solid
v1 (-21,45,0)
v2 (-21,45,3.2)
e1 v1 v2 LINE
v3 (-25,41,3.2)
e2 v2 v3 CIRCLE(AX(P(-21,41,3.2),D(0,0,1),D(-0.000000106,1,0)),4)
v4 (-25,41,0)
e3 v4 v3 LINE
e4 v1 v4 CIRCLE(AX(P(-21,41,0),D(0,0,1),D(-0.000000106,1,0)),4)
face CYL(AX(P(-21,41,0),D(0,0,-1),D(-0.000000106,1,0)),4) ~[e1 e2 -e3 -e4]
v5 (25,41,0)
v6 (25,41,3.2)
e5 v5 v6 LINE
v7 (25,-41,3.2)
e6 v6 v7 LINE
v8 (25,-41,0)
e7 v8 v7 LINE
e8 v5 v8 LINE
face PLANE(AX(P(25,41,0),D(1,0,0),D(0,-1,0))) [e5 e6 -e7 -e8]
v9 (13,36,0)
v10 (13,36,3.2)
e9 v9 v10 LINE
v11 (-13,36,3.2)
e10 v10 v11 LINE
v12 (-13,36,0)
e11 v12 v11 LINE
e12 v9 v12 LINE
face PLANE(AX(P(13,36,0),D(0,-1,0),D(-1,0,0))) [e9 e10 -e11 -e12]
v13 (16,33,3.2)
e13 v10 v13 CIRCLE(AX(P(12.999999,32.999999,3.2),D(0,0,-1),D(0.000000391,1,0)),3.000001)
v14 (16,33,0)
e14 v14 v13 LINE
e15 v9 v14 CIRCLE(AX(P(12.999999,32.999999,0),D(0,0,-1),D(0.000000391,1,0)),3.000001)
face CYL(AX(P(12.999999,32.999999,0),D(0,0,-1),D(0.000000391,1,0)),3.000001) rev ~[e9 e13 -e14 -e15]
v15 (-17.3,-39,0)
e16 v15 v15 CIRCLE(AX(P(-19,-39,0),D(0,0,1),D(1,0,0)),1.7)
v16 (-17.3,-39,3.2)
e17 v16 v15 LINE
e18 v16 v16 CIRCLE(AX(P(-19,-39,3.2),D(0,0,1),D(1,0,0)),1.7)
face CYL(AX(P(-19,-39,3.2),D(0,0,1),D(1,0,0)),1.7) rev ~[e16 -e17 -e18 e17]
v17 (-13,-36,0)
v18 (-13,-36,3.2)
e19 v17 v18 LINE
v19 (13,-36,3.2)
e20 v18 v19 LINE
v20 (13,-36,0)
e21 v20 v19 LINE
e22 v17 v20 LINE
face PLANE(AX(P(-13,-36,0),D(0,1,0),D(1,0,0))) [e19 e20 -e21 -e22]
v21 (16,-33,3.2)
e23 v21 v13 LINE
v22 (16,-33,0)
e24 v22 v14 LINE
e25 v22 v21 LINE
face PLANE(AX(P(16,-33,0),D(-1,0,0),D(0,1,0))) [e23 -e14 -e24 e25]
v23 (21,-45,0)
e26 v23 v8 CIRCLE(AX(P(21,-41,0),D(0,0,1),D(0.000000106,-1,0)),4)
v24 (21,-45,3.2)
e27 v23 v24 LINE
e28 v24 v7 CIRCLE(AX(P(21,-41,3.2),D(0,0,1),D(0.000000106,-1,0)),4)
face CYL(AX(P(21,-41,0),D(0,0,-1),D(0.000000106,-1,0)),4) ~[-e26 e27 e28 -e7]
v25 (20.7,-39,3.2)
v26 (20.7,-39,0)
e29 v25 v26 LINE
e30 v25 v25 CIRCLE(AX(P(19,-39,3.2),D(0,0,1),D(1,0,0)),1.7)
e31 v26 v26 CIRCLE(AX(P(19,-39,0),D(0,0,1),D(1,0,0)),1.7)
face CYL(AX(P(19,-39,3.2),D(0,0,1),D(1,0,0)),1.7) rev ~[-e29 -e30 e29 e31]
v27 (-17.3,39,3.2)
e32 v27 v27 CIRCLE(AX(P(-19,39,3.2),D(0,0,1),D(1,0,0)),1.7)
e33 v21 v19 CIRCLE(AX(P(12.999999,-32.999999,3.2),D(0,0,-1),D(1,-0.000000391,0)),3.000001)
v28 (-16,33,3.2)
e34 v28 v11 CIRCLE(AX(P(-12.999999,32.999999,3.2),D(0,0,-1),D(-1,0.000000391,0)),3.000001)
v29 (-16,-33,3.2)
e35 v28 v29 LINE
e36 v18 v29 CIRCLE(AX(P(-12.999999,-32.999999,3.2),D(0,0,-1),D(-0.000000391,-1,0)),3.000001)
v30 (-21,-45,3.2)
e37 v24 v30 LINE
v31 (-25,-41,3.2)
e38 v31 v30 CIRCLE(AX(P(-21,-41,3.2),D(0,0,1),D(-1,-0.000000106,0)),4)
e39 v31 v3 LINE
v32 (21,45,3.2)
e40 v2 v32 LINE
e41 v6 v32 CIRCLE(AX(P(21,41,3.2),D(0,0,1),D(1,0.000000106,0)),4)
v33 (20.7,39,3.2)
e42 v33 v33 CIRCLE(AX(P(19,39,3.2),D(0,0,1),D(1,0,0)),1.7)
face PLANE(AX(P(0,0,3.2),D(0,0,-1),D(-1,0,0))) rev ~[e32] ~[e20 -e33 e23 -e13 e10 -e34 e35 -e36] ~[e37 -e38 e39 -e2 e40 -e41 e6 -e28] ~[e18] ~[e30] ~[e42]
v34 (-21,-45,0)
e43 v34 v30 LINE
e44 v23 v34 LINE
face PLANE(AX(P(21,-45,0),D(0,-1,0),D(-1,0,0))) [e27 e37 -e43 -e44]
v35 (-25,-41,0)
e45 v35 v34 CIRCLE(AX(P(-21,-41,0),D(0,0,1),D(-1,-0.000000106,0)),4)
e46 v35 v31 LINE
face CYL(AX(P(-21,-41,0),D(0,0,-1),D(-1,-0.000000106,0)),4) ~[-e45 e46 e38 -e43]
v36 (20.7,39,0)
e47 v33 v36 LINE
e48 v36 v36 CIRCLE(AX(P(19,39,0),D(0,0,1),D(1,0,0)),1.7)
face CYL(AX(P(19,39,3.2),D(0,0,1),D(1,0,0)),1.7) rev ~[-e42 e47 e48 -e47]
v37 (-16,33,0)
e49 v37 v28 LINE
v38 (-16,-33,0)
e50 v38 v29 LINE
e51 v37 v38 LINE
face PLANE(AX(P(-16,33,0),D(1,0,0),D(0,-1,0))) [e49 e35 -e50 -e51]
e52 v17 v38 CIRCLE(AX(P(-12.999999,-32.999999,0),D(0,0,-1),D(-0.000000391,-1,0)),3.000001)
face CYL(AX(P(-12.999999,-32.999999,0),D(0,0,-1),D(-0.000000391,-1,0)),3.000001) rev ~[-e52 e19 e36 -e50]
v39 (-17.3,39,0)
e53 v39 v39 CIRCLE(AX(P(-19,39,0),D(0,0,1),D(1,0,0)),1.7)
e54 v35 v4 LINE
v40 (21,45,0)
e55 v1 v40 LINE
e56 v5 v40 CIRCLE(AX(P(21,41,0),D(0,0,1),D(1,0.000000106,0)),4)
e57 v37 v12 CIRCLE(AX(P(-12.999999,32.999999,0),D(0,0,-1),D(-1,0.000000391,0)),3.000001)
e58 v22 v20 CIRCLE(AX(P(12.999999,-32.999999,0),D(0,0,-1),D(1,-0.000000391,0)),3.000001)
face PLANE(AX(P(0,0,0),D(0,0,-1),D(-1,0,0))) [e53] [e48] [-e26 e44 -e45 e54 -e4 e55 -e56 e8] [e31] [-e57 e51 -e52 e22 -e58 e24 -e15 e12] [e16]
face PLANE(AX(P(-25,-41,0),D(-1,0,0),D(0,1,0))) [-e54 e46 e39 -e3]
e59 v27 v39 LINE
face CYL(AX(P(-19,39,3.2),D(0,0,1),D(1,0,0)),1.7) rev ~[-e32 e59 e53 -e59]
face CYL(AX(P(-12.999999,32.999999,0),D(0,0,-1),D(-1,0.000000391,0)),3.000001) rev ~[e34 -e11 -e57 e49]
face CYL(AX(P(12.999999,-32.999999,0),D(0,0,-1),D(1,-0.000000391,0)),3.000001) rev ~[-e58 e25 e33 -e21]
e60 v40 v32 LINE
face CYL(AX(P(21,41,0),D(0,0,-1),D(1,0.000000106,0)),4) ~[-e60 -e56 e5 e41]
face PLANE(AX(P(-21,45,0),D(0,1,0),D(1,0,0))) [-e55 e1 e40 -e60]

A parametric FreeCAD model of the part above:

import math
import FreeCAD as App
import Part
import Sketcher
from FreeCAD import Vector

doc = App.newDocument("Part")
params = doc.addObject("Spreadsheet::Sheet", "Params")
for row, (alias, value) in enumerate([
    ("sketch1_radius", "4 mm"),
    ("sketch1_width", "42 mm"),
    ("sketch1_height", "82 mm"),
    ("pad1_length", "3.2 mm"),
    ("sketch2_diameter", "3.4 mm"),
    ("sketch3_radius", "3.000001 mm"),
    ("sketch3_width", "26 mm"),
    ("sketch3_height", "66 mm"),
], start=1):
    params.set(f"A{row}", alias)
    params.set(f"B{row}", "=" + value)
    params.setAlias(f"B{row}", alias)

body = doc.addObject("PartDesign::Body", "Body")

sketch1 = body.newObject("Sketcher::SketchObject", "Sketch")
sketch1.AttachmentSupport = (doc.getObject("XY_Plane"), [""])
sketch1.MapMode = "FlatFace"
sketch1.addGeometry([
    Part.LineSegment(Vector(21, 45, 0), Vector(-21, 45, 0)),
    Part.ArcOfCircle(Part.Circle(Vector(-21, 41, 0), Vector(0, 0, 1), 4), math.radians(90), math.radians(180)),
    Part.LineSegment(Vector(-25, 41, 0), Vector(-25, -41, 0)),
    Part.ArcOfCircle(Part.Circle(Vector(-21, -41, 0), Vector(0, 0, 1), 4), math.radians(-180), math.radians(-90)),
    Part.LineSegment(Vector(-21, -45, 0), Vector(21, -45, 0)),
    Part.ArcOfCircle(Part.Circle(Vector(21, -41, 0), Vector(0, 0, 1), 4), math.radians(-90), math.radians(0)),
    Part.LineSegment(Vector(25, -41, 0), Vector(25, 41, 0)),
    Part.ArcOfCircle(Part.Circle(Vector(21, 41, 0), Vector(0, 0, 1), 4), math.radians(0), math.radians(90)),
], False)
sketch1.addConstraint([
    Sketcher.Constraint("Tangent", 0, 2, 1, 1),
    Sketcher.Constraint("Tangent", 1, 2, 2, 1),
    Sketcher.Constraint("Tangent", 2, 2, 3, 1),
    Sketcher.Constraint("Tangent", 3, 2, 4, 1),
    Sketcher.Constraint("Tangent", 4, 2, 5, 1),
    Sketcher.Constraint("Tangent", 5, 2, 6, 1),
    Sketcher.Constraint("Tangent", 6, 2, 7, 1),
    Sketcher.Constraint("Tangent", 7, 2, 0, 1),
    Sketcher.Constraint("Horizontal", 0),
    Sketcher.Constraint("Vertical", 2),
    Sketcher.Constraint("Horizontal", 4),
    Sketcher.Constraint("Vertical", 6),
    Sketcher.Constraint("Equal", 1, 3),
    Sketcher.Constraint("Equal", 3, 5),
    Sketcher.Constraint("Equal", 5, 7),
    Sketcher.Constraint("Symmetric", 1, 3, 5, 3, -1, 1),
    Sketcher.Constraint("Radius", 1, 4.0),
    Sketcher.Constraint("DistanceX", 0, 2, 0, 1, 42.0),
    Sketcher.Constraint("DistanceY", 2, 2, 2, 1, 82.0),
])
sketch1.setExpression("Constraints[16]", "Params.sketch1_radius")
sketch1.setExpression("Constraints[17]", "Params.sketch1_width")
sketch1.setExpression("Constraints[18]", "Params.sketch1_height")
pad1 = body.newObject("PartDesign::Pad", "Pad")
pad1.Profile = sketch1
pad1.setExpression("Length", "Params.pad1_length")

sketch2 = body.newObject("Sketcher::SketchObject", "Sketch001")
sketch2.AttachmentSupport = (doc.getObject("XY_Plane"), [""])
sketch2.MapMode = "FlatFace"
sketch2.AttachmentOffset = App.Placement(Vector(0, 0, 3.2), App.Rotation())
sketch2.addGeometry([
    Part.Circle(Vector(-19, 39, 0), Vector(0, 0, 1), 1.7),
    Part.Circle(Vector(19, 39, 0), Vector(0, 0, 1), 1.7),
    Part.Circle(Vector(-19, -39, 0), Vector(0, 0, 1), 1.7),
    Part.Circle(Vector(19, -39, 0), Vector(0, 0, 1), 1.7),
], False)
sketch2.addConstraint([
    Sketcher.Constraint("Equal", 0, 1),
    Sketcher.Constraint("Equal", 1, 2),
    Sketcher.Constraint("Equal", 2, 3),
    Sketcher.Constraint("Symmetric", 1, 3, 2, 3, -1, 1),
    Sketcher.Constraint("Symmetric", 0, 3, 3, 3, -1, 1),
    Sketcher.Constraint("Symmetric", 0, 3, 1, 3, -2),
    Sketcher.Constraint("Diameter", 0, 3.4),
    Sketcher.Constraint("DistanceX", 0, 3, -1, 1, 19.0),
    Sketcher.Constraint("DistanceY", -1, 1, 0, 3, 39.0),
])
sketch2.setExpression("Constraints[6]", "Params.sketch2_diameter")
pocket1 = body.newObject("PartDesign::Pocket", "Pocket")
pocket1.Profile = sketch2
pocket1.Type = "ThroughAll"

sketch3 = body.newObject("Sketcher::SketchObject", "Sketch002")
sketch3.AttachmentSupport = (doc.getObject("XY_Plane"), [""])
sketch3.MapMode = "FlatFace"
sketch3.addGeometry([
    Part.LineSegment(Vector(13, -36, 0), Vector(-13, -36, 0)),
    Part.ArcOfCircle(Part.Circle(Vector(-13, -33, 0), Vector(0, 0, 1), 3), math.radians(-180), math.radians(-90)),
    Part.LineSegment(Vector(-16, -33, 0), Vector(-16, 33, 0)),
    Part.ArcOfCircle(Part.Circle(Vector(-13, 33, 0), Vector(0, 0, 1), 3), math.radians(90), math.radians(180)),
    Part.LineSegment(Vector(-13, 36, 0), Vector(13, 36, 0)),
    Part.ArcOfCircle(Part.Circle(Vector(13, 33, 0), Vector(0, 0, 1), 3), math.radians(0), math.radians(90)),
    Part.LineSegment(Vector(16, 33, 0), Vector(16, -33, 0)),
    Part.ArcOfCircle(Part.Circle(Vector(13, -33, 0), Vector(0, 0, 1), 3), math.radians(-90), math.radians(0)),
], False)
sketch3.addConstraint([
    Sketcher.Constraint("Tangent", 0, 2, 1, 2),
    Sketcher.Constraint("Tangent", 1, 1, 2, 1),
    Sketcher.Constraint("Tangent", 2, 2, 3, 2),
    Sketcher.Constraint("Tangent", 3, 1, 4, 1),
    Sketcher.Constraint("Tangent", 4, 2, 5, 2),
    Sketcher.Constraint("Tangent", 5, 1, 6, 1),
    Sketcher.Constraint("Tangent", 6, 2, 7, 2),
    Sketcher.Constraint("Tangent", 7, 1, 0, 1),
    Sketcher.Constraint("Horizontal", 0),
    Sketcher.Constraint("Vertical", 2),
    Sketcher.Constraint("Horizontal", 4),
    Sketcher.Constraint("Vertical", 6),
    Sketcher.Constraint("Equal", 1, 3),
    Sketcher.Constraint("Equal", 3, 5),
    Sketcher.Constraint("Equal", 5, 7),
    Sketcher.Constraint("Symmetric", 1, 3, 5, 3, -1, 1),
    Sketcher.Constraint("Radius", 1, 3.000001),
    Sketcher.Constraint("DistanceX", 0, 2, 0, 1, 26.0),
    Sketcher.Constraint("DistanceY", 2, 1, 2, 2, 66.0),
])
sketch3.setExpression("Constraints[16]", "Params.sketch3_radius")
sketch3.setExpression("Constraints[17]", "Params.sketch3_width")
sketch3.setExpression("Constraints[18]", "Params.sketch3_height")
pocket2 = body.newObject("PartDesign::Pocket", "Pocket001")
pocket2.Profile = sketch3
pocket2.Type = "ThroughAll"
pocket2.Reversed = True

doc.recompute()
